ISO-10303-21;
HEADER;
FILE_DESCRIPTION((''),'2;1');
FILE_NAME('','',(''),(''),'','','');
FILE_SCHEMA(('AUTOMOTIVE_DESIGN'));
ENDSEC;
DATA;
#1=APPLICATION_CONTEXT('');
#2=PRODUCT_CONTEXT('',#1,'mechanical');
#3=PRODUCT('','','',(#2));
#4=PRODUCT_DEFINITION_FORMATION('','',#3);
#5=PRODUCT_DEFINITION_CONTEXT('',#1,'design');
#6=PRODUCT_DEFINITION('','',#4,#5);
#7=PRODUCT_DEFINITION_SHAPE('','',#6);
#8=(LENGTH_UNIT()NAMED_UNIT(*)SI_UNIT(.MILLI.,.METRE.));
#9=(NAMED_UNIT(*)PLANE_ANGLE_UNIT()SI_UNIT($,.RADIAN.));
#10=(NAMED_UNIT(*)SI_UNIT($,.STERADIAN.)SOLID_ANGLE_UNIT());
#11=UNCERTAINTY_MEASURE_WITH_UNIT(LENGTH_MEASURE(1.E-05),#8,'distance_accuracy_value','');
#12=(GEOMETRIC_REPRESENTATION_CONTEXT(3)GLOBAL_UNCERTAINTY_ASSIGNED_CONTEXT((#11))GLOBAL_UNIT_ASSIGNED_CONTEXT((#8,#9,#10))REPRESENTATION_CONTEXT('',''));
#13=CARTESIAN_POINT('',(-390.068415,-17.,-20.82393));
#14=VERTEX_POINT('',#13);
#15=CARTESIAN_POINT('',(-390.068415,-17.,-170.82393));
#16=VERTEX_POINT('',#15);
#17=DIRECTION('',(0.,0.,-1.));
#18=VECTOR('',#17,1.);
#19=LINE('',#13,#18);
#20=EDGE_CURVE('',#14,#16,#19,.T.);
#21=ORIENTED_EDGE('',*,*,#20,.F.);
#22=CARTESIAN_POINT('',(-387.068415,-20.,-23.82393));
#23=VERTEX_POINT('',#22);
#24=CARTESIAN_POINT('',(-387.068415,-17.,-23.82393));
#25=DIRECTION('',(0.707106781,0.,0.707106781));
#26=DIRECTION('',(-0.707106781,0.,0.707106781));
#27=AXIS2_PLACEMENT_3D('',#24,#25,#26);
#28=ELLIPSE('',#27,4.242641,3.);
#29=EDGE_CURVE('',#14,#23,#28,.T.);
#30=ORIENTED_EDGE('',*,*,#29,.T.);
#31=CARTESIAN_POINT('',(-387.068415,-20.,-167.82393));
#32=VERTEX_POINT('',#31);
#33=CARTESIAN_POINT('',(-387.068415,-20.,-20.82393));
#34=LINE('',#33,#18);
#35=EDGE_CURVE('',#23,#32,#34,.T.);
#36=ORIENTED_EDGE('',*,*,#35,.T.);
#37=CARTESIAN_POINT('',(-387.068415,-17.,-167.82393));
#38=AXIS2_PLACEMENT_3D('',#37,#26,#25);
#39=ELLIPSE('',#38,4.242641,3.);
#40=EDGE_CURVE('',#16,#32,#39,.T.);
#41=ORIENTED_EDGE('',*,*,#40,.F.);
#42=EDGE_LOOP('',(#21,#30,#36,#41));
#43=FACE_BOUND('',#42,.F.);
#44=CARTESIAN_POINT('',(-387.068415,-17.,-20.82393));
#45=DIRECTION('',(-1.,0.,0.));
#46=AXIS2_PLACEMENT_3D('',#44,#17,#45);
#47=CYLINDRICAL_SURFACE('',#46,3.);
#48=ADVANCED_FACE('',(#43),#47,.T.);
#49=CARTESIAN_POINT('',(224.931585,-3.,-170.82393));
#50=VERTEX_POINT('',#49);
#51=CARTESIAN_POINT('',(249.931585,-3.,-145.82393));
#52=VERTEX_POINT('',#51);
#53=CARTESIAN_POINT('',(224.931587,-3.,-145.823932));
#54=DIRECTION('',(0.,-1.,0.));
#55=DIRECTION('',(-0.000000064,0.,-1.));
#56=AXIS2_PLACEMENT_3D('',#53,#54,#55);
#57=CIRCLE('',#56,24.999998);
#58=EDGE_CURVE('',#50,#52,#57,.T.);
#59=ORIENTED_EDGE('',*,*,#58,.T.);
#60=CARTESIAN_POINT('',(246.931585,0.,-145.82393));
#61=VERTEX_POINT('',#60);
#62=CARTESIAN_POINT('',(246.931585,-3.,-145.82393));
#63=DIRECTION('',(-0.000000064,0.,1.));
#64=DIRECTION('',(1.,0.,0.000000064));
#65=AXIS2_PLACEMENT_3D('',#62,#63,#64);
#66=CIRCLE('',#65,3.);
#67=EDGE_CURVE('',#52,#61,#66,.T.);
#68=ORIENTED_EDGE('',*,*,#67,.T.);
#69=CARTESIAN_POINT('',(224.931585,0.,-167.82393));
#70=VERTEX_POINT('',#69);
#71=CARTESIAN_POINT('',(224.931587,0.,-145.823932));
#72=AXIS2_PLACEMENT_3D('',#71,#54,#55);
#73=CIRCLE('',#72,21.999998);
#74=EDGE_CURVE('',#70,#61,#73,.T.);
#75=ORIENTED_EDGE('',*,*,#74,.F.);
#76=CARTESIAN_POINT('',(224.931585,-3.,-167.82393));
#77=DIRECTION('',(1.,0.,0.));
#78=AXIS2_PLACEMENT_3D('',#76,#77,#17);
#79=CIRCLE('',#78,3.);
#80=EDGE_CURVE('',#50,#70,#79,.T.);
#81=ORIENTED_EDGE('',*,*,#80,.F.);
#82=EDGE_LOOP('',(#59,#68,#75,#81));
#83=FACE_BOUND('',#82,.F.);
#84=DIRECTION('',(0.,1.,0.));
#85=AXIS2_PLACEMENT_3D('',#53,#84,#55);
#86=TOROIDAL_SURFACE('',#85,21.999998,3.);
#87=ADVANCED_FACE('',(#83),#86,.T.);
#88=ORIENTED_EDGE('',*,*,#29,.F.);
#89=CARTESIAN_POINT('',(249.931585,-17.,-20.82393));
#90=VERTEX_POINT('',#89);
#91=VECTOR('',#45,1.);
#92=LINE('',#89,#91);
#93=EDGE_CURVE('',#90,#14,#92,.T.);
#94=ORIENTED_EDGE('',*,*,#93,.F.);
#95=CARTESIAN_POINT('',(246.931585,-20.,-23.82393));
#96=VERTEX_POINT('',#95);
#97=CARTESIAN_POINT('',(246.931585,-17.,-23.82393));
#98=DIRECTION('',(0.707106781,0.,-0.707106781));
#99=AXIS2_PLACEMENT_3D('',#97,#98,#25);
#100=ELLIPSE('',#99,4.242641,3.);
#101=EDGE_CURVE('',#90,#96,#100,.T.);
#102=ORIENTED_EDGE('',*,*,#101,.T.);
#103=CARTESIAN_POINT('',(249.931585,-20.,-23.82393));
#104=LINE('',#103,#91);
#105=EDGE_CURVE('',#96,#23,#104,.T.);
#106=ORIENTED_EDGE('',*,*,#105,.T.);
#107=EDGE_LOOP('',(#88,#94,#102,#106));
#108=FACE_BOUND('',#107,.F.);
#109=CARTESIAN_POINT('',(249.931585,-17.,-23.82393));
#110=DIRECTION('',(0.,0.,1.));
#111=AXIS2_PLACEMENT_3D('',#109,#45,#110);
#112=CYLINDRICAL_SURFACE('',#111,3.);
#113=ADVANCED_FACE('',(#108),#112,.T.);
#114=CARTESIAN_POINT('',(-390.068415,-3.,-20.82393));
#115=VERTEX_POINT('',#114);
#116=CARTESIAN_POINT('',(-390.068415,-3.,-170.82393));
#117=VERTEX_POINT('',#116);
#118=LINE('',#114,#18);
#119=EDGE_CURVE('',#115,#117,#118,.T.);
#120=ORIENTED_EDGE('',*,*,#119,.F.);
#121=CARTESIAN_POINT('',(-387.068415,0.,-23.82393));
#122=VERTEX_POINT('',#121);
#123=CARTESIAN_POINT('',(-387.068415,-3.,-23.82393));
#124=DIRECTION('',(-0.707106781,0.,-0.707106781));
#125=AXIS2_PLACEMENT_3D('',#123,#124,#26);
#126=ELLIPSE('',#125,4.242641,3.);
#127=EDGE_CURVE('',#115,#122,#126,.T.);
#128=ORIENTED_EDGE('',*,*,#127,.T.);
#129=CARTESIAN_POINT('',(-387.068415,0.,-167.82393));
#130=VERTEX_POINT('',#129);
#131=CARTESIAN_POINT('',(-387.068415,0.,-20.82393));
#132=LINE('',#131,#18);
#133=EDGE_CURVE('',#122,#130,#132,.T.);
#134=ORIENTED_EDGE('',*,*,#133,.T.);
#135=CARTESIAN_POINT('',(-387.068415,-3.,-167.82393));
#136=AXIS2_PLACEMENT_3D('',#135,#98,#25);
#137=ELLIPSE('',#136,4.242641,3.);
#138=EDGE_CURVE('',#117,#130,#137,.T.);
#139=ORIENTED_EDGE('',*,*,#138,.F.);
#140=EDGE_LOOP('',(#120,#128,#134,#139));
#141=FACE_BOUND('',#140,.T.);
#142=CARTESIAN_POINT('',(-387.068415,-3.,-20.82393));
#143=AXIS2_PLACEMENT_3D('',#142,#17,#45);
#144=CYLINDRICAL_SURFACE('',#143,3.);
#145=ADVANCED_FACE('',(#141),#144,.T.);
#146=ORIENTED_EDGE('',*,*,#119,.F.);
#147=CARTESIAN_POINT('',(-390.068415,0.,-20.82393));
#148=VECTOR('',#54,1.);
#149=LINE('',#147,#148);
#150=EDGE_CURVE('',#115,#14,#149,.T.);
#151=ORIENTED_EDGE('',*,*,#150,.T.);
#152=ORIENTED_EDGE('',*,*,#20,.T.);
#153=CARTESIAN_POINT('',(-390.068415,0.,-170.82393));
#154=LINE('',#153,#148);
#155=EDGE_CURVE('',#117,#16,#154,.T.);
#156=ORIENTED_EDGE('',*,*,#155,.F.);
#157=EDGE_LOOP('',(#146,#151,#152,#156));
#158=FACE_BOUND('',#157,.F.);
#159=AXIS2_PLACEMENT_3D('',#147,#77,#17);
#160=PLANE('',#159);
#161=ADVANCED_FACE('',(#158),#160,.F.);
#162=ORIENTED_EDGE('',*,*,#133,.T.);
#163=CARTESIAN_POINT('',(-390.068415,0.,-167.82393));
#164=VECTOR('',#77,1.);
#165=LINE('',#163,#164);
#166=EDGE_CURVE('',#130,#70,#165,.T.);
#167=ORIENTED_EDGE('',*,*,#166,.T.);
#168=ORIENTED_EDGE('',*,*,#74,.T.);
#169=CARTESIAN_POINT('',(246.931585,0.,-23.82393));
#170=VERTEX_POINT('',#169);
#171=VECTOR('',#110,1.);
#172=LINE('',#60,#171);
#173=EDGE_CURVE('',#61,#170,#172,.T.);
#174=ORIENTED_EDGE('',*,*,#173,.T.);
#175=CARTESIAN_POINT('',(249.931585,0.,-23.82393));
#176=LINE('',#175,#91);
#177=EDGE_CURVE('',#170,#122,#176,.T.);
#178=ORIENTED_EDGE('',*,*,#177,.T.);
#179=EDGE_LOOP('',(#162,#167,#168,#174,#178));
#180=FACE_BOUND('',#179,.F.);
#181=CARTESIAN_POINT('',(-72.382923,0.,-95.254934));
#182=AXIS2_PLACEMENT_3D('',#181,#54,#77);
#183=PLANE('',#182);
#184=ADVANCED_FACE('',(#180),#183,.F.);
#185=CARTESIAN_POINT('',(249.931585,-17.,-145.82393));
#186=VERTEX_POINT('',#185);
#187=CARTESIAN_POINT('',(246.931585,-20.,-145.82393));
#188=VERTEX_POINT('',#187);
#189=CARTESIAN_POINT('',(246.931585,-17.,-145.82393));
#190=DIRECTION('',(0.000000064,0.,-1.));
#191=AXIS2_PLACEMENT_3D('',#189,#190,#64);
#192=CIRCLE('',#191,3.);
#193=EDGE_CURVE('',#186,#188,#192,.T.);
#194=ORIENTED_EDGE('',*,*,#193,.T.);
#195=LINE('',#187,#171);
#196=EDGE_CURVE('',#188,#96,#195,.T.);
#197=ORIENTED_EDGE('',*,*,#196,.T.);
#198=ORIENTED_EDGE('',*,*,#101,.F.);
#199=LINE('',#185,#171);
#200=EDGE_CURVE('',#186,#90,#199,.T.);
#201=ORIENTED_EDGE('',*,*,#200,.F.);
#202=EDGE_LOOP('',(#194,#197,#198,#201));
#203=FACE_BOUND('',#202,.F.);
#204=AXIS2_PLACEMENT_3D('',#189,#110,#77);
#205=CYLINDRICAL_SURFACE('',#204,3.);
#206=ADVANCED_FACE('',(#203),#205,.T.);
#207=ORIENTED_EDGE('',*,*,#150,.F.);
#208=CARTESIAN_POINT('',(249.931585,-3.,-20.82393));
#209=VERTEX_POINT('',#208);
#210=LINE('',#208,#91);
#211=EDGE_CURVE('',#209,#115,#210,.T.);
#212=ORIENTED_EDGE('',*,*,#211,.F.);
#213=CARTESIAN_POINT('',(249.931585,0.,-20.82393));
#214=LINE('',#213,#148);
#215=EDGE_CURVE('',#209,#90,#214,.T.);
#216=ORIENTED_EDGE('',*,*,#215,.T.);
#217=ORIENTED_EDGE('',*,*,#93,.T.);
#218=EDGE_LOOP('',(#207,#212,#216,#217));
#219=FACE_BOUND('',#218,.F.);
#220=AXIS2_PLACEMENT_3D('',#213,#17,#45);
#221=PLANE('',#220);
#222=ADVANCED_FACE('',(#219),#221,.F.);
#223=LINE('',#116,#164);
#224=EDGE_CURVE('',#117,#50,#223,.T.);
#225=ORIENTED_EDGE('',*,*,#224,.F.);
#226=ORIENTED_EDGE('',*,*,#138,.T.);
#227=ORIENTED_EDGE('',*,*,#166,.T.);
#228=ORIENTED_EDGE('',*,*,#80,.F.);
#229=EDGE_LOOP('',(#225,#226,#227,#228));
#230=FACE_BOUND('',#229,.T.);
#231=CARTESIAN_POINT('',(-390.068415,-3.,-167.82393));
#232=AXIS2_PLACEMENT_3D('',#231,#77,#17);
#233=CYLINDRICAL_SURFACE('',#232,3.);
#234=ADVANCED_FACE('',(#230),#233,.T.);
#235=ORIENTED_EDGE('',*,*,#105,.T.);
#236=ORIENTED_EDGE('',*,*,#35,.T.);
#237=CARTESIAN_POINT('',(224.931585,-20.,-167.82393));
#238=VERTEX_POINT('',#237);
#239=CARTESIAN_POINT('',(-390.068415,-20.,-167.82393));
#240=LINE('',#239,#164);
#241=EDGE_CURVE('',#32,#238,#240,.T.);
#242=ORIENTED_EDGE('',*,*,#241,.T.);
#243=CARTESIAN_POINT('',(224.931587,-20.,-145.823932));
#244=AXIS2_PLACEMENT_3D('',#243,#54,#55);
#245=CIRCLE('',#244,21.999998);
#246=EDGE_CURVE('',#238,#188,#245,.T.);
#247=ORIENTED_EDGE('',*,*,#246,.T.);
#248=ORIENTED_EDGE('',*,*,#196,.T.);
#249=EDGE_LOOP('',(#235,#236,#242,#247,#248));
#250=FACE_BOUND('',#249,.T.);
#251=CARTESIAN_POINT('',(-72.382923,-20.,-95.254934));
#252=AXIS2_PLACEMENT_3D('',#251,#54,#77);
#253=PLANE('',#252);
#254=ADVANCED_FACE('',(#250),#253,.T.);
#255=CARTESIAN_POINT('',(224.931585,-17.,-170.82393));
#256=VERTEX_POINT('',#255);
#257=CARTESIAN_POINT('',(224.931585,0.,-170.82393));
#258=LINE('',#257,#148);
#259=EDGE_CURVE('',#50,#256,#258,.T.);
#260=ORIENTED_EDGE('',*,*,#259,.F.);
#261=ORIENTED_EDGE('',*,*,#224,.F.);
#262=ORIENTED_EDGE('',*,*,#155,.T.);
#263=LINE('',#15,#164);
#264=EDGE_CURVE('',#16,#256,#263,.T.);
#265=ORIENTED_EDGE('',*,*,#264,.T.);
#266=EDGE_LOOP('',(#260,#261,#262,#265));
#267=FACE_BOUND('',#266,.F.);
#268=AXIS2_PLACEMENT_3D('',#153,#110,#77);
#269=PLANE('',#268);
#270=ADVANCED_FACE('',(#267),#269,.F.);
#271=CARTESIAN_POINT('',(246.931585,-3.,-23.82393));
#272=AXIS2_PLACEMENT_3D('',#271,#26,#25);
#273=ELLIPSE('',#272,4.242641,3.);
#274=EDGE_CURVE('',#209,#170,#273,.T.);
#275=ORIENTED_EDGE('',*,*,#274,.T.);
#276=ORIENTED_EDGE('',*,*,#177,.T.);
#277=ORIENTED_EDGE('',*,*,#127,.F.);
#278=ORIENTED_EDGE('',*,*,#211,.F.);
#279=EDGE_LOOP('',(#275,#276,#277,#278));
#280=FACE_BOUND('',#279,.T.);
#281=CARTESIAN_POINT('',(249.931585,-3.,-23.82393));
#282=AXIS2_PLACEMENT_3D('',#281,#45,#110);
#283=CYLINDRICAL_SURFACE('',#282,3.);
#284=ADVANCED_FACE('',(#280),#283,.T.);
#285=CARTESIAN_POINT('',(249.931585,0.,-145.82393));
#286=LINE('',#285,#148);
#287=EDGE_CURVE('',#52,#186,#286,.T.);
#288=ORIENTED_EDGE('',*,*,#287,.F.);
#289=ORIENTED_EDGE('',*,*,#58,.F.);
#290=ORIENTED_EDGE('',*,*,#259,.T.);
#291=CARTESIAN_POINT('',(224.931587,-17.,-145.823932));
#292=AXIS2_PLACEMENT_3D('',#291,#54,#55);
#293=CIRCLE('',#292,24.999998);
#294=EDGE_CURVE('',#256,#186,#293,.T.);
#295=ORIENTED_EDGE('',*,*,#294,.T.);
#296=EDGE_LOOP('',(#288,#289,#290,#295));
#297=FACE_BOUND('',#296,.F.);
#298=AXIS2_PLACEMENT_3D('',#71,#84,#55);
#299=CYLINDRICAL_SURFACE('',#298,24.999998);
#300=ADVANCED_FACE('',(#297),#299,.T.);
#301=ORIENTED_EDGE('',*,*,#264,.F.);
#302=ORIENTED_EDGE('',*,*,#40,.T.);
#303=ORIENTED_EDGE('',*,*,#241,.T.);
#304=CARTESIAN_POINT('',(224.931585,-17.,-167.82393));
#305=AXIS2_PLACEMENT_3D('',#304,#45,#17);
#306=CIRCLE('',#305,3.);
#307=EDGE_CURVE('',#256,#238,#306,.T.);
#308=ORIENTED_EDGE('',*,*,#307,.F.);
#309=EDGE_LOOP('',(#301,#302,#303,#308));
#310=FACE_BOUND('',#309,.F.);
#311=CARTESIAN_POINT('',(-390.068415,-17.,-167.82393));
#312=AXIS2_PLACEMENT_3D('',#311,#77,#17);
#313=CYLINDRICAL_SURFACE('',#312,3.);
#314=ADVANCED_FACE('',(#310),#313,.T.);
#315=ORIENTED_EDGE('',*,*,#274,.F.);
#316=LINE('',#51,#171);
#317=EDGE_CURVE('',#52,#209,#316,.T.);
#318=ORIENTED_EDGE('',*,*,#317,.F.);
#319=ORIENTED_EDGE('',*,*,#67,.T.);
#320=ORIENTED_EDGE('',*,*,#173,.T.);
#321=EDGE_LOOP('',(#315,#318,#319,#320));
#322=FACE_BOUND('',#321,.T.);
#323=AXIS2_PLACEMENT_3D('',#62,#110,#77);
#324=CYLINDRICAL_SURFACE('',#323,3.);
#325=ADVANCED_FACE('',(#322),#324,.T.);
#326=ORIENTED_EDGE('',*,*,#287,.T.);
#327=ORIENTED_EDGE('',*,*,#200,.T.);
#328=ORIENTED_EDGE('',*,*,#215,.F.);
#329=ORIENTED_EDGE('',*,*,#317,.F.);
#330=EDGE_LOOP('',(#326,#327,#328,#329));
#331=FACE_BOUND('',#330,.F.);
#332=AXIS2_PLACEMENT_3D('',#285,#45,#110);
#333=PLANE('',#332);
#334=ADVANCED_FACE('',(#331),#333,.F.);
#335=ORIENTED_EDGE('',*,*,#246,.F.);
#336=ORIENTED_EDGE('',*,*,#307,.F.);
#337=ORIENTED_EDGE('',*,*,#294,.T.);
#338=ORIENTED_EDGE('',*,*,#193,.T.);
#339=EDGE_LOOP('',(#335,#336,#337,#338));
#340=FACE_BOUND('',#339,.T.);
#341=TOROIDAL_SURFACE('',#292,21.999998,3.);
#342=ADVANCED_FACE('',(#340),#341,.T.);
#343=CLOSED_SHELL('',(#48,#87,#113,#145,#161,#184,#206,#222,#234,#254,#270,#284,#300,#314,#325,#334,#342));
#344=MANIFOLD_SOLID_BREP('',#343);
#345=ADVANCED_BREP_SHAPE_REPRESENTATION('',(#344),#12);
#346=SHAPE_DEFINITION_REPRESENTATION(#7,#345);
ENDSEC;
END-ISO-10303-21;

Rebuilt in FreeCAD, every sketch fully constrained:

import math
import FreeCAD as App
import Part
import Sketcher

V = App.Vector
Q = App.Units.Quantity


def edges_at(feature, points):
    """Names of the edges that pass closest to the given points."""
    edges = feature.Shape.Edges
    near = lambda p: min(range(len(edges)), key=lambda i: edges[i].distToShape(Part.Vertex(*p))[0])
    return sorted({f"Edge{near(p) + 1}" for p in points})

doc = App.newDocument("Part")
body = doc.addObject("PartDesign::Body", "Body")

sketch1 = body.newObject("Sketcher::SketchObject", "Sketch")
sketch1.AttachmentSupport = (doc.getObject("XZ_Plane"), [""])
sketch1.MapMode = "FlatFace"
sketch1.addGeometry([
    Part.LineSegment(V(250, -21, 0), V(-390, -21, 0)),
    Part.LineSegment(V(-390, -21, 0), V(-390, -171, 0)),
    Part.LineSegment(V(-390, -171, 0), V(225, -171, 0)),
    Part.ArcOfCircle(Part.Circle(V(225, -146, 0), V(0, 0, 1), 25), math.radians(-90), math.radians(0)),
    Part.LineSegment(V(250, -146, 0), V(250, -21, 0)),
], False)
sketch1.addConstraint([
    Sketcher.Constraint("Coincident", 0, 2, 1, 1),
    Sketcher.Constraint("Coincident", 1, 2, 2, 1),
    Sketcher.Constraint("Tangent", 2, 2, 3, 1),
    Sketcher.Constraint("Tangent", 3, 2, 4, 1),
    Sketcher.Constraint("Coincident", 4, 2, 0, 1),
    Sketcher.Constraint("Horizontal", 0),
    Sketcher.Constraint("Vertical", 1),
    Sketcher.Constraint("Horizontal", 2),
    Sketcher.Constraint("Vertical", 4),
    Sketcher.Constraint("Radius", 3, Q("24.999998 mm")),
    Sketcher.Constraint("DistanceX", 0, 2, 0, 1, Q("640 mm")),
    Sketcher.Constraint("DistanceY", 1, 2, 1, 1, Q("150 mm")),
    Sketcher.Constraint("DistanceY", 3, 3, -1, 1, Q("145.823932 mm")),
    Sketcher.Constraint("DistanceX", -1, 1, 3, 3, Q("224.931587 mm")),
])
pad1 = body.newObject("PartDesign::Pad", "Pad")
pad1.Profile = sketch1
pad1.Length = 20
doc.recompute()

fillet = body.newObject("PartDesign::Fillet", "Fillet")
fillet.Base = (pad1, edges_at(pad1, [
    (242.609, 0, -163.502),
    (249.932, 0, -83.324),
    (-70.068, 0, -20.824),
    (-390.068, 0, -95.824),
    (-82.568, 0, -170.824),
    (242.609, -20, -163.502),
    (249.932, -20, -83.324),
    (-70.068, -20, -20.824),
    (-390.068, -20, -95.824),
    (-82.568, -20, -170.824),
]))
fillet.Radius = 3

doc.recompute()
